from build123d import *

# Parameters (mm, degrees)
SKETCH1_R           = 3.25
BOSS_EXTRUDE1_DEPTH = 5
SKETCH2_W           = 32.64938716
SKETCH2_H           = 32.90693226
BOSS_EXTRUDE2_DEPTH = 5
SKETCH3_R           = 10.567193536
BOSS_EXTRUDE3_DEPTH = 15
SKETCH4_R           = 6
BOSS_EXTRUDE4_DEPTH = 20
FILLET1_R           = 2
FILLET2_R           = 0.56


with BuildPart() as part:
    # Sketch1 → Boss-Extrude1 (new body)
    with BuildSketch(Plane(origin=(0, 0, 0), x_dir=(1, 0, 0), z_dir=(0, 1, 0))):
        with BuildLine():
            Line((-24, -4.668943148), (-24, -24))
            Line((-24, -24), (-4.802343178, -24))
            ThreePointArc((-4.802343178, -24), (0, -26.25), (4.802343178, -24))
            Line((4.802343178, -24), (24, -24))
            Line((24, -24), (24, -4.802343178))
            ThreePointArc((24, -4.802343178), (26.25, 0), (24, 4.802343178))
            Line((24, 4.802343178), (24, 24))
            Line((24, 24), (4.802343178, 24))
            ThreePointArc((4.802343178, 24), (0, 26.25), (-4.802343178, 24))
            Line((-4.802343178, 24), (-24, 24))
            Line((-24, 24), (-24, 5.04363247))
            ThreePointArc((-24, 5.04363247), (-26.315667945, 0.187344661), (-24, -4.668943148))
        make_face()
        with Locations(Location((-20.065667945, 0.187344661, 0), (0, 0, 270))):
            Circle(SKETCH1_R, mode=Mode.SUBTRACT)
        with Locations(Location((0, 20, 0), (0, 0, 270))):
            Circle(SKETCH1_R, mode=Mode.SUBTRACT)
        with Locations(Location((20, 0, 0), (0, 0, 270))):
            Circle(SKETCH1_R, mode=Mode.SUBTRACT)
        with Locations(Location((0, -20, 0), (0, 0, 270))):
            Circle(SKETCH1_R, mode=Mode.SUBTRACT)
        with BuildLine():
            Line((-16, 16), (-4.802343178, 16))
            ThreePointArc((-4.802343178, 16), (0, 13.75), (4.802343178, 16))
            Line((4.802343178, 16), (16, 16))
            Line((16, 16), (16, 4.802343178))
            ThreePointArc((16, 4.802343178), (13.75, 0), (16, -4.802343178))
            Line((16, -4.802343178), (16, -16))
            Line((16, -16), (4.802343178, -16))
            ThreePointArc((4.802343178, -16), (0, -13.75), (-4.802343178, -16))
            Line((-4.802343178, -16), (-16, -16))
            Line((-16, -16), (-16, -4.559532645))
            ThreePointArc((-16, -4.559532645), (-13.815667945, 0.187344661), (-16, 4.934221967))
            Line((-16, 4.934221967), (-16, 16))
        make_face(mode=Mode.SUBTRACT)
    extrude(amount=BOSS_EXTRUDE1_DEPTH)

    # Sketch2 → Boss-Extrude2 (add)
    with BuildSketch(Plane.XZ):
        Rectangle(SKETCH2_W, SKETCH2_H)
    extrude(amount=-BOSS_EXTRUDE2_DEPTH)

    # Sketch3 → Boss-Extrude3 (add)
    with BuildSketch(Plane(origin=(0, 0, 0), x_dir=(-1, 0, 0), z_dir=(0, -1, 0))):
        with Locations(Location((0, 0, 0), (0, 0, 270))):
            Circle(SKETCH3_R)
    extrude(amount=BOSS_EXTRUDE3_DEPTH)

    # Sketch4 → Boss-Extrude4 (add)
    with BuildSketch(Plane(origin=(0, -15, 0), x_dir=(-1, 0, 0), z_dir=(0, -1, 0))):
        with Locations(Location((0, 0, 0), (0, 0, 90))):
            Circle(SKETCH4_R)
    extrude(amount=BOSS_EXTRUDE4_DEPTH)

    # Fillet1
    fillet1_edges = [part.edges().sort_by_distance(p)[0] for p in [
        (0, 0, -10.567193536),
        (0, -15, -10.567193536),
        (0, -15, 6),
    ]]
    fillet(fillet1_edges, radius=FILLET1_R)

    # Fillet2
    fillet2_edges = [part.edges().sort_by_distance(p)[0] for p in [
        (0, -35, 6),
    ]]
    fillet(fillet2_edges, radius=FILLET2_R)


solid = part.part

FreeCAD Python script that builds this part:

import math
import FreeCAD as App
import Part
import Sketcher
Q = App.Units.Quantity


def edges_at(feature, points):
    """Names of the edges that pass closest to the given points."""
    edges = feature.Shape.Edges
    near = lambda p: min(range(len(edges)), key=lambda i: edges[i].distToShape(Part.Vertex(*p))[0])
    return sorted({f"Edge{near(p) + 1}" for p in points})

doc = App.newDocument("Part")
body = doc.addObject("PartDesign::Body", "Body")

sketch1 = body.newObject("Sketcher::SketchObject", "Sketch")
sketch1.AttachmentSupport = (doc.getObject("XZ_Plane"), [""])
sketch1.MapMode = "FlatFace"
sketch1.addGeometry([
    Part.LineSegment(App.Vector(-24, 4.7, 0), App.Vector(-24, 24, 0)),
    Part.LineSegment(App.Vector(-24, 24, 0), App.Vector(-4.8, 24, 0)),
    Part.ArcOfCircle(Part.Circle(App.Vector(0, 20, 0), App.Vector(0, 0, 1), 6.2), math.radians(40), math.radians(140)),
    Part.LineSegment(App.Vector(4.8, 24, 0), App.Vector(24, 24, 0)),
    Part.LineSegment(App.Vector(24, 24, 0), App.Vector(24, 4.8, 0)),
    Part.ArcOfCircle(Part.Circle(App.Vector(20, 0, 0), App.Vector(0, 0, 1), 6.2), math.radians(-50), math.radians(50)),
    Part.LineSegment(App.Vector(24, -4.8, 0), App.Vector(24, -24, 0)),
    Part.LineSegment(App.Vector(24, -24, 0), App.Vector(4.8, -24, 0)),
    Part.ArcOfCircle(Part.Circle(App.Vector(0, -20, 0), App.Vector(0, 0, 1), 6.2), math.radians(-140), math.radians(-40)),
    Part.LineSegment(App.Vector(-4.8, -24, 0), App.Vector(-24, -24, 0)),
    Part.LineSegment(App.Vector(-24, -24, 0), App.Vector(-24, -5, 0)),
    Part.ArcOfCircle(Part.Circle(App.Vector(-20.1, -0.2, 0), App.Vector(0, 0, 1), 6.3), math.radians(129), math.radians(231)),
    Part.Circle(App.Vector(0, 20, 0), App.Vector(0, 0, 1), 3.2),
    Part.Circle(App.Vector(-20.1, -0.2, 0), App.Vector(0, 0, 1), 3.2),
    Part.LineSegment(App.Vector(-16, -4.9, 0), App.Vector(-16, -16, 0)),
    Part.LineSegment(App.Vector(-16, -16, 0), App.Vector(-4.8, -16, 0)),
    Part.ArcOfCircle(Part.Circle(App.Vector(0, -20, 0), App.Vector(0, 0, 1), 6.2), math.radians(40), math.radians(140)),
    Part.LineSegment(App.Vector(4.8, -16, 0), App.Vector(16, -16, 0)),
    Part.LineSegment(App.Vector(16, -16, 0), App.Vector(16, -4.8, 0)),
    Part.ArcOfCircle(Part.Circle(App.Vector(20, 0, 0), App.Vector(0, 0, 1), 6.2), math.radians(130), math.radians(230)),
    Part.LineSegment(App.Vector(16, 4.8, 0), App.Vector(16, 16, 0)),
    Part.LineSegment(App.Vector(16, 16, 0), App.Vector(4.8, 16, 0)),
    Part.ArcOfCircle(Part.Circle(App.Vector(0, 20, 0), App.Vector(0, 0, 1), 6.2), math.radians(-140), math.radians(-40)),
    Part.LineSegment(App.Vector(-4.8, 16, 0), App.Vector(-16, 16, 0)),
    Part.LineSegment(App.Vector(-16, 16, 0), App.Vector(-16, 4.6, 0)),
    Part.ArcOfCircle(Part.Circle(App.Vector(-20.1, -0.2, 0), App.Vector(0, 0, 1), 6.2), math.radians(-49), math.radians(49)),
    Part.Circle(App.Vector(20, 0, 0), App.Vector(0, 0, 1), 3.2),
    Part.Circle(App.Vector(0, -20, 0), App.Vector(0, 0, 1), 3.2),
], False)
sketch1.addConstraint([
    Sketcher.Constraint("Coincident", 0, 2, 1, 1),
    Sketcher.Constraint("Coincident", 1, 2, 2, 2),
    Sketcher.Constraint("Coincident", 2, 1, 3, 1),
    Sketcher.Constraint("Coincident", 3, 2, 4, 1),
    Sketcher.Constraint("Coincident", 4, 2, 5, 2),
    Sketcher.Constraint("Coincident", 5, 1, 6, 1),
    Sketcher.Constraint("Coincident", 6, 2, 7, 1),
    Sketcher.Constraint("Coincident", 7, 2, 8, 2),
    Sketcher.Constraint("Coincident", 8, 1, 9, 1),
    Sketcher.Constraint("Coincident", 9, 2, 10, 1),
    Sketcher.Constraint("Coincident", 10, 2, 11, 2),
    Sketcher.Constraint("Coincident", 11, 1, 0, 1),
    Sketcher.Constraint("Coincident", 14, 2, 15, 1),
    Sketcher.Constraint("Coincident", 15, 2, 16, 2),
    Sketcher.Constraint("Coincident", 16, 1, 17, 1),
    Sketcher.Constraint("Coincident", 17, 2, 18, 1),
    Sketcher.Constraint("Coincident", 18, 2, 19, 2),
    Sketcher.Constraint("Coincident", 19, 1, 20, 1),
    Sketcher.Constraint("Coincident", 20, 2, 21, 1),
    Sketcher.Constraint("Coincident", 21, 2, 22, 2),
    Sketcher.Constraint("Coincident", 22, 1, 23, 1),
    Sketcher.Constraint("Coincident", 23, 2, 24, 1),
    Sketcher.Constraint("Coincident", 24, 2, 25, 2),
    Sketcher.Constraint("Coincident", 25, 1, 14, 1),
    Sketcher.Constraint("Vertical", 0),
    Sketcher.Constraint("Horizontal", 1),
    Sketcher.Constraint("Horizontal", 3),
    Sketcher.Constraint("Vertical", 4),
    Sketcher.Constraint("Vertical", 6),
    Sketcher.Constraint("Horizontal", 7),
    Sketcher.Constraint("Horizontal", 9),
    Sketcher.Constraint("Vertical", 10),
    Sketcher.Constraint("Vertical", 14),
    Sketcher.Constraint("Horizontal", 15),
    Sketcher.Constraint("Horizontal", 17),
    Sketcher.Constraint("Vertical", 18),
    Sketcher.Constraint("Vertical", 20),
    Sketcher.Constraint("Horizontal", 21),
    Sketcher.Constraint("Horizontal", 23),
    Sketcher.Constraint("Vertical", 24),
    Sketcher.Constraint("Coincident", 12, 3, 2, 3),
    Sketcher.Constraint("Coincident", 13, 3, 11, 3),
    Sketcher.Constraint("Coincident", 16, 3, 8, 3),
    Sketcher.Constraint("Coincident", 19, 3, 5, 3),
    Sketcher.Constraint("Coincident", 22, 3, 2, 3),
    Sketcher.Constraint("Coincident", 25, 3, 11, 3),
    Sketcher.Constraint("Coincident", 26, 3, 5, 3),
    Sketcher.Constraint("Coincident", 27, 3, 8, 3),
    Sketcher.Constraint("Equal", 2, 5),
    Sketcher.Constraint("Equal", 5, 8),
    Sketcher.Constraint("Equal", 8, 11),
    Sketcher.Constraint("Equal", 12, 13),
    Sketcher.Constraint("Equal", 11, 16),
    Sketcher.Constraint("Equal", 16, 19),
    Sketcher.Constraint("Equal", 19, 22),
    Sketcher.Constraint("Equal", 22, 25),
    Sketcher.Constraint("Equal", 13, 26),
    Sketcher.Constraint("Equal", 26, 27),
    Sketcher.Constraint("Symmetric", 2, 3, 8, 3, -1, 1),
    Sketcher.Constraint("Symmetric", 0, 2, 6, 2, -1, 1),
    Sketcher.Constraint("Symmetric", 3, 2, 9, 2, -1, 1),
    Sketcher.Constraint("Symmetric", 14, 2, 20, 2, -1, 1),
    Sketcher.Constraint("Symmetric", 17, 2, 23, 2, -1, 1),
    Sketcher.Constraint("Symmetric", 1, 2, 2, 1, -2),
    Sketcher.Constraint("Symmetric", 14, 2, 17, 2, -2),
    Sketcher.Constraint("Symmetric", 4, 2, 5, 1, -1),
    Sketcher.Constraint("Horizontal", 5, 1, 18, 2),
    Sketcher.Constraint("Vertical", 8, 1, 15, 2),
    Sketcher.Constraint("Equal", 9, 4),
    Sketcher.Constraint("Equal", 23, 18),
    Sketcher.Constraint("Diameter", 12, Q("6.5 mm")),
    Sketcher.Constraint("Radius", 2, Q("6.25 mm")),
    Sketcher.Constraint("DistanceY", -1, 1, 2, 3, Q("20 mm")),
    Sketcher.Constraint("DistanceX", 0, 2, -1, 1, Q("24 mm")),
    Sketcher.Constraint("DistanceY", 14, 2, 14, 1, Q("11.065778 mm")),
    Sketcher.Constraint("DistanceY", 0, 1, 0, 2, Q("19.331057 mm")),
])
pad1 = body.newObject("PartDesign::Pad", "Pad")
pad1.Profile = sketch1
pad1.Length = 5
pad1.Reversed = True

sketch2 = body.newObject("Sketcher::SketchObject", "Sketch001")
sketch2.AttachmentSupport = (doc.getObject("XZ_Plane"), [""])
sketch2.MapMode = "FlatFace"
sketch2.addGeometry([
    Part.LineSegment(App.Vector(-16, 16, 0), App.Vector(-16, -16, 0)),
    Part.LineSegment(App.Vector(-16, -16, 0), App.Vector(16, -16, 0)),
    Part.LineSegment(App.Vector(16, -16, 0), App.Vector(16, 16, 0)),
    Part.LineSegment(App.Vector(16, 16, 0), App.Vector(-16, 16, 0)),
], False)
sketch2.addConstraint([
    Sketcher.Constraint("Coincident", 0, 2, 1, 1),
    Sketcher.Constraint("Coincident", 1, 2, 2, 1),
    Sketcher.Constraint("Coincident", 2, 2, 3, 1),
    Sketcher.Constraint("Coincident", 3, 2, 0, 1),
    Sketcher.Constraint("Vertical", 0),
    Sketcher.Constraint("Horizontal", 1),
    Sketcher.Constraint("Vertical", 2),
    Sketcher.Constraint("Horizontal", 3),
    Sketcher.Constraint("Symmetric", 0, 2, 2, 2, -1, 1),
    Sketcher.Constraint("DistanceX", 1, 1, 1, 2, Q("32.649387 mm")),
    Sketcher.Constraint("DistanceY", 0, 2, 0, 1, Q("32.906932 mm")),
])
pad2 = body.newObject("PartDesign::Pad", "Pad001")
pad2.Profile = sketch2
pad2.Length = 5
pad2.Reversed = True

sketch3 = body.newObject("Sketcher::SketchObject", "Sketch002")
sketch3.AttachmentSupport = (doc.getObject("XZ_Plane"), [""])
sketch3.MapMode = "FlatFace"
sketch3.addGeometry(Part.Circle(App.Vector(0, 0, 0), App.Vector(0, 0, 1), 11), False)
sketch3.addConstraint([
    Sketcher.Constraint("Coincident", 0, 3, -1, 1),
    Sketcher.Constraint("Diameter", 0, Q("21.134387 mm")),
])
pad3 = body.newObject("PartDesign::Pad", "Pad002")
pad3.Profile = sketch3
pad3.Length = 15

sketch4 = body.newObject("Sketcher::SketchObject", "Sketch003")
sketch4.AttachmentSupport = (doc.getObject("XZ_Plane"), [""])
sketch4.MapMode = "FlatFace"
sketch4.AttachmentOffset = App.Placement(App.Vector(0, 0, 15), App.Rotation())
sketch4.addGeometry(Part.Circle(App.Vector(0, 0, 0), App.Vector(0, 0, 1), 6), False)
sketch4.addConstraint([
    Sketcher.Constraint("Coincident", 0, 3, -1, 1),
    Sketcher.Constraint("Diameter", 0, Q("12 mm")),
])
pad4 = body.newObject("PartDesign::Pad", "Pad003")
pad4.Profile = sketch4
pad4.Length = 20
doc.recompute()

fillet = body.newObject("PartDesign::Fillet", "Fillet")
fillet.Base = (pad4, edges_at(pad4, [(0, 0, -10.567), (0, -15, -10.567), (0, -15, 6)]))
fillet.Radius = 2
doc.recompute()

fillet2 = body.newObject("PartDesign::Fillet", "Fillet001")
fillet2.Base = (fillet, edges_at(fillet, [(0, -35, 6)]))
fillet2.Radius = 0.56

doc.recompute()
